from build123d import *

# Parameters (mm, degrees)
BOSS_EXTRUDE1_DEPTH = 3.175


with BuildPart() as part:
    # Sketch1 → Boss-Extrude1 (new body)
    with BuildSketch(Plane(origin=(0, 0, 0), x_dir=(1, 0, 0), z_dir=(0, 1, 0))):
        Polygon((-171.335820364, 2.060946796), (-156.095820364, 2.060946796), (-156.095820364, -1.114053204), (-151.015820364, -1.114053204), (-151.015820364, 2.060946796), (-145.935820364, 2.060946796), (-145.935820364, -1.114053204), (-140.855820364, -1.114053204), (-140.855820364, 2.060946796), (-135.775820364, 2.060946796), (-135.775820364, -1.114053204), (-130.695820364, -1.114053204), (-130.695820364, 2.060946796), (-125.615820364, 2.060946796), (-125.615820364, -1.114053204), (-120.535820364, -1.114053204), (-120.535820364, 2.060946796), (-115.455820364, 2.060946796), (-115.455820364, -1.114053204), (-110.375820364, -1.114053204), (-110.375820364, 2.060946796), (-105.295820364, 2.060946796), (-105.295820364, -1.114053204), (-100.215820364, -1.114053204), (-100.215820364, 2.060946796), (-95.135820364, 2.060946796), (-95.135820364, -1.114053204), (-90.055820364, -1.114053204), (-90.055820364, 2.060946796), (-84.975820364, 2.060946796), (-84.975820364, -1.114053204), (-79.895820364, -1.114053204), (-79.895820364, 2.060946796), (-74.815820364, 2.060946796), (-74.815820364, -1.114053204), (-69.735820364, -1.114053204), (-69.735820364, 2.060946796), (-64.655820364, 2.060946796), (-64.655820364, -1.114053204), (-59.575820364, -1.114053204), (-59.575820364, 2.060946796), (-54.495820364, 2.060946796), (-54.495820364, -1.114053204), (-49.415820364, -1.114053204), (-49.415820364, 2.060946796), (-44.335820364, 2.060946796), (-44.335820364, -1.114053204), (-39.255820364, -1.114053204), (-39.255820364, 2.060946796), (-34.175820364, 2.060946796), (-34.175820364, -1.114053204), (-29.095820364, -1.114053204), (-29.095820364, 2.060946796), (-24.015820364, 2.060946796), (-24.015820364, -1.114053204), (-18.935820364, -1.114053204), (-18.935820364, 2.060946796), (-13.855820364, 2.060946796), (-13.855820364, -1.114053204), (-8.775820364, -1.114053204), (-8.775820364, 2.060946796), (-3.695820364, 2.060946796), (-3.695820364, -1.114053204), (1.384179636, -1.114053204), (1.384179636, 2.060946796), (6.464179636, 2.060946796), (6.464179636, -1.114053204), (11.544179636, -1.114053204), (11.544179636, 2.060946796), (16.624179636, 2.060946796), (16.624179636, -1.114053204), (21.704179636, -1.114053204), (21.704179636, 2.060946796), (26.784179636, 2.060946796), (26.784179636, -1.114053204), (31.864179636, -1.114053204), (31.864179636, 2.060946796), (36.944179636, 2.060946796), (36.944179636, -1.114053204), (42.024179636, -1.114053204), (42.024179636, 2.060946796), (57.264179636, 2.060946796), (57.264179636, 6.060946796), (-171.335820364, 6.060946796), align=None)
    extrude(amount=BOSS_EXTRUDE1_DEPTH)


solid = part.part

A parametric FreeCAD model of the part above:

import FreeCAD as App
import Part
import Sketcher

V = App.Vector
Q = App.Units.Quantity

doc = App.newDocument("Part")
body = doc.addObject("PartDesign::Body", "Body")

# Sketch on XZ plane
sketch1 = doc.addObject("Sketcher::SketchObject", "Sketch")
body.addObject(sketch1)
sketch1.AttachmentSupport = (doc.XZ_Plane, [""])
sketch1.MapMode = "FlatFace"
sketch1.addGeometry([
    Part.LineSegment(V(-171.3, -2.1, 0), V(-156.1, -2.1, 0)),  # 0
    Part.LineSegment(V(-156.1, -2.1, 0), V(-156.1, 1.1, 0)),  # 1
    Part.LineSegment(V(-156.1, 1.1, 0), V(-151, 1.1, 0)),  # 2
    Part.LineSegment(V(-151, 1.1, 0), V(-151, -2.1, 0)),  # 3
    Part.LineSegment(V(-151, -2.1, 0), V(-145.9, -2.1, 0)),  # 4
    Part.LineSegment(V(-145.9, -2.1, 0), V(-145.9, 1.1, 0)),  # 5
    Part.LineSegment(V(-145.9, 1.1, 0), V(-140.9, 1.1, 0)),  # 6
    Part.LineSegment(V(-140.9, 1.1, 0), V(-140.9, -2.1, 0)),  # 7
    Part.LineSegment(V(-140.9, -2.1, 0), V(-135.8, -2.1, 0)),  # 8
    Part.LineSegment(V(-135.8, -2.1, 0), V(-135.8, 1.1, 0)),  # 9
    Part.LineSegment(V(-135.8, 1.1, 0), V(-130.7, 1.1, 0)),  # 10
    Part.LineSegment(V(-130.7, 1.1, 0), V(-130.7, -2.1, 0)),  # 11
    Part.LineSegment(V(-130.7, -2.1, 0), V(-125.6, -2.1, 0)),  # 12
    Part.LineSegment(V(-125.6, -2.1, 0), V(-125.6, 1.1, 0)),  # 13
    Part.LineSegment(V(-125.6, 1.1, 0), V(-120.5, 1.1, 0)),  # 14
    Part.LineSegment(V(-120.5, 1.1, 0), V(-120.5, -2.1, 0)),  # 15
    Part.LineSegment(V(-120.5, -2.1, 0), V(-115.5, -2.1, 0)),  # 16
    Part.LineSegment(V(-115.5, -2.1, 0), V(-115.5, 1.1, 0)),  # 17
    Part.LineSegment(V(-115.5, 1.1, 0), V(-110.4, 1.1, 0)),  # 18
    Part.LineSegment(V(-110.4, 1.1, 0), V(-110.4, -2.1, 0)),  # 19
    Part.LineSegment(V(-110.4, -2.1, 0), V(-105.3, -2.1, 0)),  # 20
    Part.LineSegment(V(-105.3, -2.1, 0), V(-105.3, 1.1, 0)),  # 21
    Part.LineSegment(V(-105.3, 1.1, 0), V(-100.2, 1.1, 0)),  # 22
    Part.LineSegment(V(-100.2, 1.1, 0), V(-100.2, -2.1, 0)),  # 23
    Part.LineSegment(V(-100.2, -2.1, 0), V(-95.1, -2.1, 0)),  # 24
    Part.LineSegment(V(-95.1, -2.1, 0), V(-95.1, 1.1, 0)),  # 25
    Part.LineSegment(V(-95.1, 1.1, 0), V(-90.1, 1.1, 0)),  # 26
    Part.LineSegment(V(-90.1, 1.1, 0), V(-90.1, -2.1, 0)),  # 27
    Part.LineSegment(V(-90.1, -2.1, 0), V(-85, -2.1, 0)),  # 28
    Part.LineSegment(V(-85, -2.1, 0), V(-85, 1.1, 0)),  # 29
    Part.LineSegment(V(-85, 1.1, 0), V(-79.9, 1.1, 0)),  # 30
    Part.LineSegment(V(-79.9, 1.1, 0), V(-79.9, -2.1, 0)),  # 31
    Part.LineSegment(V(-79.9, -2.1, 0), V(-74.8, -2.1, 0)),  # 32
    Part.LineSegment(V(-74.8, -2.1, 0), V(-74.8, 1.1, 0)),  # 33
    Part.LineSegment(V(-74.8, 1.1, 0), V(-69.7, 1.1, 0)),  # 34
    Part.LineSegment(V(-69.7, 1.1, 0), V(-69.7, -2.1, 0)),  # 35
    Part.LineSegment(V(-69.7, -2.1, 0), V(-64.7, -2.1, 0)),  # 36
    Part.LineSegment(V(-64.7, -2.1, 0), V(-64.7, 1.1, 0)),  # 37
    Part.LineSegment(V(-64.7, 1.1, 0), V(-59.6, 1.1, 0)),  # 38
    Part.LineSegment(V(-59.6, 1.1, 0), V(-59.6, -2.1, 0)),  # 39
    Part.LineSegment(V(-59.6, -2.1, 0), V(-54.5, -2.1, 0)),  # 40
    Part.LineSegment(V(-54.5, -2.1, 0), V(-54.5, 1.1, 0)),  # 41
    Part.LineSegment(V(-54.5, 1.1, 0), V(-49.4, 1.1, 0)),  # 42
    Part.LineSegment(V(-49.4, 1.1, 0), V(-49.4, -2.1, 0)),  # 43
    Part.LineSegment(V(-49.4, -2.1, 0), V(-44.3, -2.1, 0)),  # 44
    Part.LineSegment(V(-44.3, -2.1, 0), V(-44.3, 1.1, 0)),  # 45
    Part.LineSegment(V(-44.3, 1.1, 0), V(-39.3, 1.1, 0)),  # 46
    Part.LineSegment(V(-39.3, 1.1, 0), V(-39.3, -2.1, 0)),  # 47
    Part.LineSegment(V(-39.3, -2.1, 0), V(-34.2, -2.1, 0)),  # 48
    Part.LineSegment(V(-34.2, -2.1, 0), V(-34.2, 1.1, 0)),  # 49
    Part.LineSegment(V(-34.2, 1.1, 0), V(-29.1, 1.1, 0)),  # 50
    Part.LineSegment(V(-29.1, 1.1, 0), V(-29.1, -2.1, 0)),  # 51
    Part.LineSegment(V(-29.1, -2.1, 0), V(-24, -2.1, 0)),  # 52
    Part.LineSegment(V(-24, -2.1, 0), V(-24, 1.1, 0)),  # 53
    Part.LineSegment(V(-24, 1.1, 0), V(-18.9, 1.1, 0)),  # 54
    Part.LineSegment(V(-18.9, 1.1, 0), V(-18.9, -2.1, 0)),  # 55
    Part.LineSegment(V(-18.9, -2.1, 0), V(-13.9, -2.1, 0)),  # 56
    Part.LineSegment(V(-13.9, -2.1, 0), V(-13.9, 1.1, 0)),  # 57
    Part.LineSegment(V(-13.9, 1.1, 0), V(-8.8, 1.1, 0)),  # 58
    Part.LineSegment(V(-8.8, 1.1, 0), V(-8.8, -2.1, 0)),  # 59
    Part.LineSegment(V(-8.8, -2.1, 0), V(-3.7, -2.1, 0)),  # 60
    Part.LineSegment(V(-3.7, -2.1, 0), V(-3.7, 1.1, 0)),  # 61
    Part.LineSegment(V(-3.7, 1.1, 0), V(1.4, 1.1, 0)),  # 62
    Part.LineSegment(V(1.4, 1.1, 0), V(1.4, -2.1, 0)),  # 63
    Part.LineSegment(V(1.4, -2.1, 0), V(6.5, -2.1, 0)),  # 64
    Part.LineSegment(V(6.5, -2.1, 0), V(6.5, 1.1, 0)),  # 65
    Part.LineSegment(V(6.5, 1.1, 0), V(11.5, 1.1, 0)),  # 66
    Part.LineSegment(V(11.5, 1.1, 0), V(11.5, -2.1, 0)),  # 67
    Part.LineSegment(V(11.5, -2.1, 0), V(16.6, -2.1, 0)),  # 68
    Part.LineSegment(V(16.6, -2.1, 0), V(16.6, 1.1, 0)),  # 69
    Part.LineSegment(V(16.6, 1.1, 0), V(21.7, 1.1, 0)),  # 70
    Part.LineSegment(V(21.7, 1.1, 0), V(21.7, -2.1, 0)),  # 71
    Part.LineSegment(V(21.7, -2.1, 0), V(26.8, -2.1, 0)),  # 72
    Part.LineSegment(V(26.8, -2.1, 0), V(26.8, 1.1, 0)),  # 73
    Part.LineSegment(V(26.8, 1.1, 0), V(31.9, 1.1, 0)),  # 74
    Part.LineSegment(V(31.9, 1.1, 0), V(31.9, -2.1, 0)),  # 75
    Part.LineSegment(V(31.9, -2.1, 0), V(36.9, -2.1, 0)),  # 76
    Part.LineSegment(V(36.9, -2.1, 0), V(36.9, 1.1, 0)),  # 77
    Part.LineSegment(V(36.9, 1.1, 0), V(42, 1.1, 0)),  # 78
    Part.LineSegment(V(42, 1.1, 0), V(42, -2.1, 0)),  # 79
    Part.LineSegment(V(42, -2.1, 0), V(57.3, -2.1, 0)),  # 80
    Part.LineSegment(V(57.3, -2.1, 0), V(57.3, -6.1, 0)),  # 81
    Part.LineSegment(V(57.3, -6.1, 0), V(-171.3, -6.1, 0)),  # 82
    Part.LineSegment(V(-171.3, -6.1, 0), V(-171.3, -2.1, 0)),  # 83
], False)
sketch1.addConstraint([
    Sketcher.Constraint("Coincident", 0, 2, 1, 1),
    Sketcher.Constraint("Coincident", 1, 2, 2, 1),
    Sketcher.Constraint("Coincident", 2, 2, 3, 1),
    Sketcher.Constraint("Coincident", 3, 2, 4, 1),
    Sketcher.Constraint("Coincident", 4, 2, 5, 1),
    Sketcher.Constraint("Coincident", 5, 2, 6, 1),
    Sketcher.Constraint("Coincident", 6, 2, 7, 1),
    Sketcher.Constraint("Coincident", 7, 2, 8, 1),
    Sketcher.Constraint("Coincident", 8, 2, 9, 1),
    Sketcher.Constraint("Coincident", 9, 2, 10, 1),
    Sketcher.Constraint("Coincident", 10, 2, 11, 1),
    Sketcher.Constraint("Coincident", 11, 2, 12, 1),
    Sketcher.Constraint("Coincident", 12, 2, 13, 1),
    Sketcher.Constraint("Coincident", 13, 2, 14, 1),
    Sketcher.Constraint("Coincident", 14, 2, 15, 1),
    Sketcher.Constraint("Coincident", 15, 2, 16, 1),
    Sketcher.Constraint("Coincident", 16, 2, 17, 1),
    Sketcher.Constraint("Coincident", 17, 2, 18, 1),
    Sketcher.Constraint("Coincident", 18, 2, 19, 1),
    Sketcher.Constraint("Coincident", 19, 2, 20, 1),
    Sketcher.Constraint("Coincident", 20, 2, 21, 1),
    Sketcher.Constraint("Coincident", 21, 2, 22, 1),
    Sketcher.Constraint("Coincident", 22, 2, 23, 1),
    Sketcher.Constraint("Coincident", 23, 2, 24, 1),
    Sketcher.Constraint("Coincident", 24, 2, 25, 1),
    Sketcher.Constraint("Coincident", 25, 2, 26, 1),
    Sketcher.Constraint("Coincident", 26, 2, 27, 1),
    Sketcher.Constraint("Coincident", 27, 2, 28, 1),
    Sketcher.Constraint("Coincident", 28, 2, 29, 1),
    Sketcher.Constraint("Coincident", 29, 2, 30, 1),
    Sketcher.Constraint("Coincident", 30, 2, 31, 1),
    Sketcher.Constraint("Coincident", 31, 2, 32, 1),
    Sketcher.Constraint("Coincident", 32, 2, 33, 1),
    Sketcher.Constraint("Coincident", 33, 2, 34, 1),
    Sketcher.Constraint("Coincident", 34, 2, 35, 1),
    Sketcher.Constraint("Coincident", 35, 2, 36, 1),
    Sketcher.Constraint("Coincident", 36, 2, 37, 1),
    Sketcher.Constraint("Coincident", 37, 2, 38, 1),
    Sketcher.Constraint("Coincident", 38, 2, 39, 1),
    Sketcher.Constraint("Coincident", 39, 2, 40, 1),
    Sketcher.Constraint("Coincident", 40, 2, 41, 1),
    Sketcher.Constraint("Coincident", 41, 2, 42, 1),
    Sketcher.Constraint("Coincident", 42, 2, 43, 1),
    Sketcher.Constraint("Coincident", 43, 2, 44, 1),
    Sketcher.Constraint("Coincident", 44, 2, 45, 1),
    Sketcher.Constraint("Coincident", 45, 2, 46, 1),
    Sketcher.Constraint("Coincident", 46, 2, 47, 1),
    Sketcher.Constraint("Coincident", 47, 2, 48, 1),
    Sketcher.Constraint("Coincident", 48, 2, 49, 1),
    Sketcher.Constraint("Coincident", 49, 2, 50, 1),
    Sketcher.Constraint("Coincident", 50, 2, 51, 1),
    Sketcher.Constraint("Coincident", 51, 2, 52, 1),
    Sketcher.Constraint("Coincident", 52, 2, 53, 1),
    Sketcher.Constraint("Coincident", 53, 2, 54, 1),
    Sketcher.Constraint("Coincident", 54, 2, 55, 1),
    Sketcher.Constraint("Coincident", 55, 2, 56, 1),
    Sketcher.Constraint("Coincident", 56, 2, 57, 1),
    Sketcher.Constraint("Coincident", 57, 2, 58, 1),
    Sketcher.Constraint("Coincident", 58, 2, 59, 1),
    Sketcher.Constraint("Coincident", 59, 2, 60, 1),
    Sketcher.Constraint("Coincident", 60, 2, 61, 1),
    Sketcher.Constraint("Coincident", 61, 2, 62, 1),
    Sketcher.Constraint("Coincident", 62, 2, 63, 1),
    Sketcher.Constraint("Coincident", 63, 2, 64, 1),
    Sketcher.Constraint("Coincident", 64, 2, 65, 1),
    Sketcher.Constraint("Coincident", 65, 2, 66, 1),
    Sketcher.Constraint("Coincident", 66, 2, 67, 1),
    Sketcher.Constraint("Coincident", 67, 2, 68, 1),
    Sketcher.Constraint("Coincident", 68, 2, 69, 1),
    Sketcher.Constraint("Coincident", 69, 2, 70, 1),
    Sketcher.Constraint("Coincident", 70, 2, 71, 1),
    Sketcher.Constraint("Coincident", 71, 2, 72, 1),
    Sketcher.Constraint("Coincident", 72, 2, 73, 1),
    Sketcher.Constraint("Coincident", 73, 2, 74, 1),
    Sketcher.Constraint("Coincident", 74, 2, 75, 1),
    Sketcher.Constraint("Coincident", 75, 2, 76, 1),
    Sketcher.Constraint("Coincident", 76, 2, 77, 1),
    Sketcher.Constraint("Coincident", 77, 2, 78, 1),
    Sketcher.Constraint("Coincident", 78, 2, 79, 1),
    Sketcher.Constraint("Coincident", 79, 2, 80, 1),
    Sketcher.Constraint("Coincident", 80, 2, 81, 1),
    Sketcher.Constraint("Coincident", 81, 2, 82, 1),
    Sketcher.Constraint("Coincident", 82, 2, 83, 1),
    Sketcher.Constraint("Coincident", 83, 2, 0, 1),
    Sketcher.Constraint("Horizontal", 0),
    Sketcher.Constraint("Vertical", 1),
    Sketcher.Constraint("Horizontal", 2),
    Sketcher.Constraint("Vertical", 3),
    Sketcher.Constraint("Horizontal", 4),
    Sketcher.Constraint("Vertical", 5),
    Sketcher.Constraint("Horizontal", 6),
    Sketcher.Constraint("Vertical", 7),
    Sketcher.Constraint("Horizontal", 8),
    Sketcher.Constraint("Vertical", 9),
    Sketcher.Constraint("Horizontal", 10),
    Sketcher.Constraint("Vertical", 11),
    Sketcher.Constraint("Horizontal", 12),
    Sketcher.Constraint("Vertical", 13),
    Sketcher.Constraint("Horizontal", 14),
    Sketcher.Constraint("Vertical", 15),
    Sketcher.Constraint("Horizontal", 16),
    Sketcher.Constraint("Vertical", 17),
    Sketcher.Constraint("Horizontal", 18),
    Sketcher.Constraint("Vertical", 19),
    Sketcher.Constraint("Horizontal", 20),
    Sketcher.Constraint("Vertical", 21),
    Sketcher.Constraint("Horizontal", 22),
    Sketcher.Constraint("Vertical", 23),
    Sketcher.Constraint("Horizontal", 24),
    Sketcher.Constraint("Vertical", 25),
    Sketcher.Constraint("Horizontal", 26),
    Sketcher.Constraint("Vertical", 27),
    Sketcher.Constraint("Horizontal", 28),
    Sketcher.Constraint("Vertical", 29),
    Sketcher.Constraint("Horizontal", 30),
    Sketcher.Constraint("Vertical", 31),
    Sketcher.Constraint("Horizontal", 32),
    Sketcher.Constraint("Vertical", 33),
    Sketcher.Constraint("Horizontal", 34),
    Sketcher.Constraint("Vertical", 35),
    Sketcher.Constraint("Horizontal", 36),
    Sketcher.Constraint("Vertical", 37),
    Sketcher.Constraint("Horizontal", 38),
    Sketcher.Constraint("Vertical", 39),
    Sketcher.Constraint("Horizontal", 40),
    Sketcher.Constraint("Vertical", 41),
    Sketcher.Constraint("Horizontal", 42),
    Sketcher.Constraint("Vertical", 43),
    Sketcher.Constraint("Horizontal", 44),
    Sketcher.Constraint("Vertical", 45),
    Sketcher.Constraint("Horizontal", 46),
    Sketcher.Constraint("Vertical", 47),
    Sketcher.Constraint("Horizontal", 48),
    Sketcher.Constraint("Vertical", 49),
    Sketcher.Constraint("Horizontal", 50),
    Sketcher.Constraint("Vertical", 51),
    Sketcher.Constraint("Horizontal", 52),
    Sketcher.Constraint("Vertical", 53),
    Sketcher.Constraint("Horizontal", 54),
    Sketcher.Constraint("Vertical", 55),
    Sketcher.Constraint("Horizontal", 56),
    Sketcher.Constraint("Vertical", 57),
    Sketcher.Constraint("Horizontal", 58),
    Sketcher.Constraint("Vertical", 59),
    Sketcher.Constraint("Horizontal", 60),
    Sketcher.Constraint("Vertical", 61),
    Sketcher.Constraint("Horizontal", 62),
    Sketcher.Constraint("Vertical", 63),
    Sketcher.Constraint("Horizontal", 64),
    Sketcher.Constraint("Vertical", 65),
    Sketcher.Constraint("Horizontal", 66),
    Sketcher.Constraint("Vertical", 67),
    Sketcher.Constraint("Horizontal", 68),
    Sketcher.Constraint("Vertical", 69),
    Sketcher.Constraint("Horizontal", 70),
    Sketcher.Constraint("Vertical", 71),
    Sketcher.Constraint("Horizontal", 72),
    Sketcher.Constraint("Vertical", 73),
    Sketcher.Constraint("Horizontal", 74),
    Sketcher.Constraint("Vertical", 75),
    Sketcher.Constraint("Horizontal", 76),
    Sketcher.Constraint("Vertical", 77),
    Sketcher.Constraint("Horizontal", 78),
    Sketcher.Constraint("Vertical", 79),
    Sketcher.Constraint("Horizontal", 80),
    Sketcher.Constraint("Vertical", 81),
    Sketcher.Constraint("Horizontal", 82),
    Sketcher.Constraint("Vertical", 83),
    Sketcher.Constraint("Horizontal", 0, 2, 3, 2),
    Sketcher.Constraint("Horizontal", 2, 2, 5, 2),
    Sketcher.Constraint("Horizontal", 4, 2, 7, 2),
    Sketcher.Constraint("Horizontal", 6, 2, 9, 2),
    Sketcher.Constraint("Horizontal", 8, 2, 11, 2),
    Sketcher.Constraint("Horizontal", 10, 2, 13, 2),
    Sketcher.Constraint("Horizontal", 12, 2, 15, 2),
    Sketcher.Constraint("Horizontal", 14, 2, 17, 2),
    Sketcher.Constraint("Horizontal", 16, 2, 19, 2),
    Sketcher.Constraint("Horizontal", 18, 2, 21, 2),
    Sketcher.Constraint("Horizontal", 20, 2, 23, 2),
    Sketcher.Constraint("Horizontal", 22, 2, 25, 2),
    Sketcher.Constraint("Horizontal", 24, 2, 27, 2),
    Sketcher.Constraint("Horizontal", 26, 2, 29, 2),
    Sketcher.Constraint("Horizontal", 28, 2, 31, 2),
    Sketcher.Constraint("Horizontal", 30, 2, 33, 2),
    Sketcher.Constraint("Horizontal", 32, 2, 35, 2),
    Sketcher.Constraint("Horizontal", 34, 2, 37, 2),
    Sketcher.Constraint("Horizontal", 36, 2, 39, 2),
    Sketcher.Constraint("Horizontal", 38, 2, 41, 2),
    Sketcher.Constraint("Horizontal", 40, 2, 43, 2),
    Sketcher.Constraint("Horizontal", 42, 2, 45, 2),
    Sketcher.Constraint("Horizontal", 44, 2, 47, 2),
    Sketcher.Constraint("Horizontal", 46, 2, 49, 2),
    Sketcher.Constraint("Horizontal", 48, 2, 51, 2),
    Sketcher.Constraint("Horizontal", 50, 2, 53, 2),
    Sketcher.Constraint("Horizontal", 52, 2, 55, 2),
    Sketcher.Constraint("Horizontal", 54, 2, 57, 2),
    Sketcher.Constraint("Horizontal", 56, 2, 59, 2),
    Sketcher.Constraint("Horizontal", 58, 2, 61, 2),
    Sketcher.Constraint("Horizontal", 60, 2, 63, 2),
    Sketcher.Constraint("Horizontal", 62, 2, 65, 2),
    Sketcher.Constraint("Horizontal", 64, 2, 67, 2),
    Sketcher.Constraint("Horizontal", 66, 2, 69, 2),
    Sketcher.Constraint("Horizontal", 68, 2, 71, 2),
    Sketcher.Constraint("Horizontal", 70, 2, 73, 2),
    Sketcher.Constraint("Horizontal", 72, 2, 75, 2),
    Sketcher.Constraint("Horizontal", 74, 2, 77, 2),
    Sketcher.Constraint("Horizontal", 76, 2, 79, 2),
    Sketcher.Constraint("Equal", 2, 4),
    Sketcher.Constraint("Equal", 4, 6),
    Sketcher.Constraint("Equal", 6, 8),
    Sketcher.Constraint("Equal", 8, 10),
    Sketcher.Constraint("Equal", 10, 12),
    Sketcher.Constraint("Equal", 12, 14),
    Sketcher.Constraint("Equal", 14, 16),
    Sketcher.Constraint("Equal", 16, 18),
    Sketcher.Constraint("Equal", 18, 20),
    Sketcher.Constraint("Equal", 20, 22),
    Sketcher.Constraint("Equal", 22, 24),
    Sketcher.Constraint("Equal", 24, 26),
    Sketcher.Constraint("Equal", 26, 28),
    Sketcher.Constraint("Equal", 28, 30),
    Sketcher.Constraint("Equal", 30, 32),
    Sketcher.Constraint("Equal", 32, 34),
    Sketcher.Constraint("Equal", 34, 36),
    Sketcher.Constraint("Equal", 36, 38),
    Sketcher.Constraint("Equal", 38, 40),
    Sketcher.Constraint("Equal", 40, 42),
    Sketcher.Constraint("Equal", 42, 44),
    Sketcher.Constraint("Equal", 44, 46),
    Sketcher.Constraint("Equal", 46, 48),
    Sketcher.Constraint("Equal", 48, 50),
    Sketcher.Constraint("Equal", 50, 52),
    Sketcher.Constraint("Equal", 52, 54),
    Sketcher.Constraint("Equal", 54, 56),
    Sketcher.Constraint("Equal", 56, 58),
    Sketcher.Constraint("Equal", 58, 60),
    Sketcher.Constraint("Equal", 60, 62),
    Sketcher.Constraint("Equal", 62, 64),
    Sketcher.Constraint("Equal", 64, 66),
    Sketcher.Constraint("Equal", 66, 68),
    Sketcher.Constraint("Equal", 68, 70),
    Sketcher.Constraint("Equal", 70, 72),
    Sketcher.Constraint("Equal", 72, 74),
    Sketcher.Constraint("Equal", 74, 76),
    Sketcher.Constraint("Equal", 76, 78),
    Sketcher.Constraint("Equal", 0, 80),
    Sketcher.Constraint("DistanceX", 82, 2, 82, 1, Q("9 in")),
    Sketcher.Constraint("DistanceX", 0, 1, 0, 2, Q("0.6 in")),
    Sketcher.Constraint("DistanceY", 1, 1, 1, 2, Q("0.125 in")),
    Sketcher.Constraint("DistanceY", 81, 2, 81, 1, 4.0),
    Sketcher.Constraint("DistanceX", 0, 2, -1, 1, 156.09582),
    Sketcher.Constraint("DistanceY", 0, 2, -1, 1, 2.060947),
])
pad1 = doc.addObject("PartDesign::Pad", "Pad")
body.addObject(pad1)
pad1.Profile = sketch1
pad1.Length = Q("0.125 in")
pad1.Reversed = True

doc.recompute()
